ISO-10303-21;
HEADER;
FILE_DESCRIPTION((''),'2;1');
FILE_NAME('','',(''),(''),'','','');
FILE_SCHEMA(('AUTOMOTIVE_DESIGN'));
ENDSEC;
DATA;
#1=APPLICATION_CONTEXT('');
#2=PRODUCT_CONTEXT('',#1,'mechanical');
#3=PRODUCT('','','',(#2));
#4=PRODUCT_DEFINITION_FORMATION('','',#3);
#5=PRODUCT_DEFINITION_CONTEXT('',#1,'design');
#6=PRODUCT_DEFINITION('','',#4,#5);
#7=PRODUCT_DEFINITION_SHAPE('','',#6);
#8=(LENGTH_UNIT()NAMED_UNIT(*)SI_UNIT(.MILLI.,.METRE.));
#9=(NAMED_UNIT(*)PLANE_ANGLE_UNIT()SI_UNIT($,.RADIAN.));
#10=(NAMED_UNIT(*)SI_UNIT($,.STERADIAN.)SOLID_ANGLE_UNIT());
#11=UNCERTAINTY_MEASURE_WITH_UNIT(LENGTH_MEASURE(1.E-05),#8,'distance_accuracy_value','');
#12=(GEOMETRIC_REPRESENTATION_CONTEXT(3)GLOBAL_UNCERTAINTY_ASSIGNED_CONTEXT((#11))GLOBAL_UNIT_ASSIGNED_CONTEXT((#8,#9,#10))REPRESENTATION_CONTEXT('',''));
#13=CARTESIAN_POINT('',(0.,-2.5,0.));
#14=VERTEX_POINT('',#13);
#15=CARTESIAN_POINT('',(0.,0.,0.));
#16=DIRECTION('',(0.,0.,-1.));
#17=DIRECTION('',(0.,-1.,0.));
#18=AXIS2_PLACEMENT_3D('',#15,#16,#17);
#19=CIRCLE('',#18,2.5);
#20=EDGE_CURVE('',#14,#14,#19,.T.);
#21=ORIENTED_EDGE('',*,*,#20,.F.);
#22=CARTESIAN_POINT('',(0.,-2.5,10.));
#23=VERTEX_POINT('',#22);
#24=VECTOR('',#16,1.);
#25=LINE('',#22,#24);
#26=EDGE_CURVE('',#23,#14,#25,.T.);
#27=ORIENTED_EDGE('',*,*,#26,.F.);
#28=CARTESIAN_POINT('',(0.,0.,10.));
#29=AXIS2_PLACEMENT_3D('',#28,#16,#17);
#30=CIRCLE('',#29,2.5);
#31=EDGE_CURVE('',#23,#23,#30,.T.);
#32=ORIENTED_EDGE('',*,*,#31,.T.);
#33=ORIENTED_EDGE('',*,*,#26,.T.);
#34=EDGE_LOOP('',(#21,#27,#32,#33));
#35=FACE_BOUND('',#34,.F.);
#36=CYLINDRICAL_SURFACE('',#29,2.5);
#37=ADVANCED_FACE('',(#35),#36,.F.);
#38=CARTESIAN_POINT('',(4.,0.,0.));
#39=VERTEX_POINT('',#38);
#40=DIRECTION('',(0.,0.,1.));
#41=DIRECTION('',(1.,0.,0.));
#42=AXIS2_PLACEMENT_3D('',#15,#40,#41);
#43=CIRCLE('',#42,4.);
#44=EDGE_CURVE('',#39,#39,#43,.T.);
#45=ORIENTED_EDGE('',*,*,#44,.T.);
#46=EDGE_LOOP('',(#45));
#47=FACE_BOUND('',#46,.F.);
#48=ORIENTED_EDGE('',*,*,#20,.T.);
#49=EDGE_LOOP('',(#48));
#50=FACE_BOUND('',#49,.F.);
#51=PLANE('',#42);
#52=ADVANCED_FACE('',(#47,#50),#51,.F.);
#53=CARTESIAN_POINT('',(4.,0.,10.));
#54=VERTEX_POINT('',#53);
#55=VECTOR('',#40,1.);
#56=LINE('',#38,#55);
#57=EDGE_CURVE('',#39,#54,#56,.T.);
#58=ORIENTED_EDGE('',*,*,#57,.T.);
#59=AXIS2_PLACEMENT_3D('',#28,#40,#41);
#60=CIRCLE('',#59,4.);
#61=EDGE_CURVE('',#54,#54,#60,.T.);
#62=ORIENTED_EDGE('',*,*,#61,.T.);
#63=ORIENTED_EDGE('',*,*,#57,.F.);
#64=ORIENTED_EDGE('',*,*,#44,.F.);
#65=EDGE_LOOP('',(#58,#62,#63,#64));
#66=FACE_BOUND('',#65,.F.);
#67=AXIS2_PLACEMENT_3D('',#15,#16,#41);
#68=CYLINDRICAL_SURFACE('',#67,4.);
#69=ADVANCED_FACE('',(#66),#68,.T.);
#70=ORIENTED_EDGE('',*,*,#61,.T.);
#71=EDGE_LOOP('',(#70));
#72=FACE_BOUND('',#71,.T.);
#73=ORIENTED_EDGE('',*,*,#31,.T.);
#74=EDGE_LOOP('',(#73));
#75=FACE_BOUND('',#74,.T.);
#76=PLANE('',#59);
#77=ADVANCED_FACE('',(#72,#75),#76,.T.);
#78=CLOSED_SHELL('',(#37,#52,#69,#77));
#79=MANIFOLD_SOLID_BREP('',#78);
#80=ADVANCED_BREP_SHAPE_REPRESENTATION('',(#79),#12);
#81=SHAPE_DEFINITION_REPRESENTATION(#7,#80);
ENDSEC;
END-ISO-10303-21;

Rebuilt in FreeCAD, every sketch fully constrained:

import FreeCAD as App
import Part
import Sketcher
Q = App.Units.Quantity

doc = App.newDocument("Part")
body = doc.addObject("PartDesign::Body", "Body")

# Sketch on XY plane
sketch1 = body.newObject("Sketcher::SketchObject", "Sketch")
sketch1.AttachmentSupport = (doc.getObject("XY_Plane"), [""])
sketch1.MapMode = "FlatFace"
sketch1.addGeometry(Part.Circle(App.Vector(0, 0, 0), App.Vector(0, 0, 1), 4), False)
sketch1.addConstraint(Sketcher.Constraint("Coincident", 0, 3, -1, 1))
sketch1.addConstraint(Sketcher.Constraint("Diameter", 0, Q("8 mm")))
pad1 = body.newObject("PartDesign::Pad", "Pad")
pad1.Profile = sketch1
pad1.Length = 10

# Sketch on XY plane
sketch2 = body.newObject("Sketcher::SketchObject", "Sketch001")
sketch2.AttachmentSupport = (doc.getObject("XY_Plane"), [""])
sketch2.MapMode = "FlatFace"
sketch2.AttachmentOffset = App.Placement(App.Vector(0, 0, 10), App.Rotation())
sketch2.addGeometry(Part.Circle(App.Vector(0, 0, 0), App.Vector(0, 0, 1), 2.5), False)
sketch2.addConstraint(Sketcher.Constraint("Coincident", 0, 3, -1, 1))
sketch2.addConstraint(Sketcher.Constraint("Diameter", 0, Q("5 mm")))
doc.recompute()
hole = body.newObject("PartDesign::Hole", "Hole")
hole.Profile = sketch2
hole.ThreadType = "None"
hole.Diameter = 5
hole.DepthType = "Dimension"
hole.Depth = 10
hole.DrillPoint = "Flat"

doc.recompute()
